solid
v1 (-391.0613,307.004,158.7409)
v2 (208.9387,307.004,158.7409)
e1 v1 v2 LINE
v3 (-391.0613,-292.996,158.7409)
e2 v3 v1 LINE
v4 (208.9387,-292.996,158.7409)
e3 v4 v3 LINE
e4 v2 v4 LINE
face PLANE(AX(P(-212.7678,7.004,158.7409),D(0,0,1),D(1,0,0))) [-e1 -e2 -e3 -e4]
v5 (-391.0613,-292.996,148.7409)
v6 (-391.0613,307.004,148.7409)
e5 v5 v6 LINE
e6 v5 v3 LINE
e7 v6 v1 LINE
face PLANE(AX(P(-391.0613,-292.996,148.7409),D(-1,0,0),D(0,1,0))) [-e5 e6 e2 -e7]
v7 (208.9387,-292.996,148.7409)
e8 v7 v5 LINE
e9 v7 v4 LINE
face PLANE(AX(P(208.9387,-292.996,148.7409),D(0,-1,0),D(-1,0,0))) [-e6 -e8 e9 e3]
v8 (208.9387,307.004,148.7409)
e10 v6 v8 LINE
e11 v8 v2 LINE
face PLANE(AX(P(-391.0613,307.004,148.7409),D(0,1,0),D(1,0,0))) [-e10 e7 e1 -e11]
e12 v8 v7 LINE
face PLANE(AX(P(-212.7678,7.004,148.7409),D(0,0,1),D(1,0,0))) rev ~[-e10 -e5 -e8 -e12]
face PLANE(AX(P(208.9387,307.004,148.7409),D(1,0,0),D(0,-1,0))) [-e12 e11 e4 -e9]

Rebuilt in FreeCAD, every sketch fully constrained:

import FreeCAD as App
import Part
import Sketcher
Q = App.Units.Quantity

doc = App.newDocument("Part")
body = doc.addObject("PartDesign::Body", "Body")

# Sketch on XY plane
sketch1 = body.newObject("Sketcher::SketchObject", "Sketch")
sketch1.AttachmentSupport = (doc.getObject("XY_Plane"), [""])
sketch1.MapMode = "FlatFace"
sketch1.AttachmentOffset = App.Placement(App.Vector(0, 0, 148.7409), App.Rotation())
sketch1.addGeometry(Part.LineSegment(App.Vector(209, 307, 0), App.Vector(-391, 307, 0)), False)
sketch1.addGeometry(Part.LineSegment(App.Vector(-391, 307, 0), App.Vector(-391, -293, 0)), False)
sketch1.addGeometry(Part.LineSegment(App.Vector(-391, -293, 0), App.Vector(209, -293, 0)), False)
sketch1.addGeometry(Part.LineSegment(App.Vector(209, -293, 0), App.Vector(209, 307, 0)), False)
sketch1.addConstraint(Sketcher.Constraint("Coincident", 0, 2, 1, 1))
sketch1.addConstraint(Sketcher.Constraint("Coincident", 1, 2, 2, 1))
sketch1.addConstraint(Sketcher.Constraint("Coincident", 2, 2, 3, 1))
sketch1.addConstraint(Sketcher.Constraint("Coincident", 3, 2, 0, 1))
sketch1.addConstraint(Sketcher.Constraint("Horizontal", 0))
sketch1.addConstraint(Sketcher.Constraint("Vertical", 1))
sketch1.addConstraint(Sketcher.Constraint("Horizontal", 2))
sketch1.addConstraint(Sketcher.Constraint("Vertical", 3))
sketch1.addConstraint(Sketcher.Constraint("Equal", 2, 1))
sketch1.addConstraint(Sketcher.Constraint("DistanceX", 0, 2, 0, 1, Q("600 mm")))
sketch1.addConstraint(Sketcher.Constraint("DistanceY", -1, 1, 0, 2, Q("307.004 mm")))
sketch1.addConstraint(Sketcher.Constraint("DistanceX", 0, 2, -1, 1, Q("391.0613 mm")))
pad1 = body.newObject("PartDesign::Pad", "Pad")
pad1.Profile = sketch1
pad1.Length = 10

doc.recompute()
